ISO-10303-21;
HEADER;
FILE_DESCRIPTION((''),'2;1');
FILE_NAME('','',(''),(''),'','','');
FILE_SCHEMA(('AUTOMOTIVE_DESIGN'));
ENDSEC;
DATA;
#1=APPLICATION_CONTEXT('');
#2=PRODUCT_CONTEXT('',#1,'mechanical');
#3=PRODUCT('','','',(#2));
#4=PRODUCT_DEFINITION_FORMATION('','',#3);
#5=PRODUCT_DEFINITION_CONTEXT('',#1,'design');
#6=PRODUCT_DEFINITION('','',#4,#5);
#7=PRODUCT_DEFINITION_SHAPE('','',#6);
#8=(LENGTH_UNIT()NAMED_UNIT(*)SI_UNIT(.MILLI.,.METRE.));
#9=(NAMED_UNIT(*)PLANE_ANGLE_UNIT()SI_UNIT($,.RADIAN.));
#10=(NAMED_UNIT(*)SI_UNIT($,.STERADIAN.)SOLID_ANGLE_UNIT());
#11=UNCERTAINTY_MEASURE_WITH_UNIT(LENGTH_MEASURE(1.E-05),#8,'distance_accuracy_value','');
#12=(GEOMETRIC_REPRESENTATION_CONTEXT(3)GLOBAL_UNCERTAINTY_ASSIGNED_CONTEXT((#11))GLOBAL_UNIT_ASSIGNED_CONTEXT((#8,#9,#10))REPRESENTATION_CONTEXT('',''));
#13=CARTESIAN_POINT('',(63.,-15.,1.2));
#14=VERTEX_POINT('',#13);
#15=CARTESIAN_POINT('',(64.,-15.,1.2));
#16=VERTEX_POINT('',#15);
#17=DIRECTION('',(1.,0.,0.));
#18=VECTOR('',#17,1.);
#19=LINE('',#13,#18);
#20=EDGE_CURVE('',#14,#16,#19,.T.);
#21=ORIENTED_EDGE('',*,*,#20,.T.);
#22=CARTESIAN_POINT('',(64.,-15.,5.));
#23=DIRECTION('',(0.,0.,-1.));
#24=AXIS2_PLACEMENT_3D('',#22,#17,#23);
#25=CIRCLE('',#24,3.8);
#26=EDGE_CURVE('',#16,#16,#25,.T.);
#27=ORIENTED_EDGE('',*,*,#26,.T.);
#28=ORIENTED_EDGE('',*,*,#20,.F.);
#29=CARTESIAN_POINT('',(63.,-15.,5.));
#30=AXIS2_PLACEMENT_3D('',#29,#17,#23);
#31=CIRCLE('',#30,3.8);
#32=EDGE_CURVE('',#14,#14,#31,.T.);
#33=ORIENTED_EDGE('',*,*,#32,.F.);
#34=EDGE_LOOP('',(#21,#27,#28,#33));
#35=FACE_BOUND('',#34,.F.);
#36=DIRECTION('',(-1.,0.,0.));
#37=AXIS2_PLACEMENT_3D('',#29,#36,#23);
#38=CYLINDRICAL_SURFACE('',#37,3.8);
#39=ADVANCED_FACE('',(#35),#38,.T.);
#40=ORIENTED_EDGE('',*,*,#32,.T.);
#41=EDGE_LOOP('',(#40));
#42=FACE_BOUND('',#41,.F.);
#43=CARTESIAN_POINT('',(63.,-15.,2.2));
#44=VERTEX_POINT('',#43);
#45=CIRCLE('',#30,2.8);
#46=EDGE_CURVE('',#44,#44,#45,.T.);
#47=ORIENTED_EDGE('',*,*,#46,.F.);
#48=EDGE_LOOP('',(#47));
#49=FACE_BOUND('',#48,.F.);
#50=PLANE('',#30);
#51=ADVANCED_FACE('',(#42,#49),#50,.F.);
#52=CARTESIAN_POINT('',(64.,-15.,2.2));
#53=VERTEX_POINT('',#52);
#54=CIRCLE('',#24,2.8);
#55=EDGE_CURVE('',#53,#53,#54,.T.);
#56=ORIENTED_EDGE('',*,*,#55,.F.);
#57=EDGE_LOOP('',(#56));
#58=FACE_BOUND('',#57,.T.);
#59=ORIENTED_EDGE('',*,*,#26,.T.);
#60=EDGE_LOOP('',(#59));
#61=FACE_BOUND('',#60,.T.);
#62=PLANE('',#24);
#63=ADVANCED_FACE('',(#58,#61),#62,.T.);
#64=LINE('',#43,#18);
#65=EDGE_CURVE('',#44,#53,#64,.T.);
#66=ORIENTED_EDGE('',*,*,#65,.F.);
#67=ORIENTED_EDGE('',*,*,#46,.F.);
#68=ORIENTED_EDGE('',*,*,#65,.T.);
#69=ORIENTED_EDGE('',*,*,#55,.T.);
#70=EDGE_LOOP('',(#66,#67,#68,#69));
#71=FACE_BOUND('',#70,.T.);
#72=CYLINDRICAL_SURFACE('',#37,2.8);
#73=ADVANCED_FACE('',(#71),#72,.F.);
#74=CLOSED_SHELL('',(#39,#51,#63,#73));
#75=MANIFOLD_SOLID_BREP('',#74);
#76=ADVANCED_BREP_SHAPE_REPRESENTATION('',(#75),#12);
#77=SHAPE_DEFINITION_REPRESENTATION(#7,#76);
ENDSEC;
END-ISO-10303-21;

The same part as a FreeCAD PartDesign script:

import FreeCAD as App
import Part
import Sketcher
from FreeCAD import Vector

doc = App.newDocument("Part")
params = doc.addObject("Spreadsheet::Sheet", "Params")
for row, (alias, value) in enumerate([
    ("sketch1_diameter", "5.6 mm"),
    ("pad1_length", "1 mm"),
    ("sketch2_diameter", "7.6 mm"),
    ("pad2_length", "1 mm"),
], start=1):
    params.set(f"A{row}", alias)
    params.set(f"B{row}", "=" + value)
    params.setAlias(f"B{row}", alias)

body = doc.addObject("PartDesign::Body", "Body")

# Sketch on XY plane
sketch1 = body.newObject("Sketcher::SketchObject", "Sketch")
sketch1.AttachmentSupport = (doc.getObject("XY_Plane"), [""])
sketch1.MapMode = "FlatFace"
sketch1.addGeometry(Part.Circle(Vector(0, 0, 0), Vector(0, 0, 1), 2.8), False)
sketch1.addConstraint([
    Sketcher.Constraint("Coincident", 0, 3, -1, 1),
    Sketcher.Constraint("Diameter", 0, 5.6),
])
sketch1.setExpression("Constraints[1]", "Params.sketch1_diameter")
pad1 = body.newObject("PartDesign::Pad", "Pad")
pad1.Profile = sketch1
pad1.setExpression("Length", "Params.pad1_length")
body2 = doc.addObject("PartDesign::Body", "Body001")
doc.recompute()

body.Placement = App.Placement(Vector(0, 0, 0), App.Rotation(Vector(0, 1, 0), 90))
boolean = body2.newObject("PartDesign::Boolean", "Boolean")
boolean.Type = "Fuse"
boolean.addObjects([body])
body3 = doc.addObject("PartDesign::Body", "Body002")
doc.recompute()

body2.Placement = App.Placement(Vector(33, -5.5, 4), App.Rotation(Vector(0, 0, 1), 0))
boolean2 = body3.newObject("PartDesign::Boolean", "Boolean001")
boolean2.Type = "Fuse"
boolean2.addObjects([body2])
body4 = doc.addObject("PartDesign::Body", "Body003")

# Sketch on XY plane
sketch2 = body4.newObject("Sketcher::SketchObject", "Sketch001")
sketch2.AttachmentSupport = (doc.getObject("XY_Plane003"), [""])
sketch2.MapMode = "FlatFace"
sketch2.addGeometry(Part.Circle(Vector(0, 0, 0), Vector(0, 0, 1), 3.8), False)
sketch2.addConstraint([
    Sketcher.Constraint("Coincident", 0, 3, -1, 1),
    Sketcher.Constraint("Diameter", 0, 7.6),
])
sketch2.setExpression("Constraints[1]", "Params.sketch2_diameter")
pad2 = body4.newObject("PartDesign::Pad", "Pad001")
pad2.Profile = sketch2
pad2.setExpression("Length", "Params.pad2_length")
body5 = doc.addObject("PartDesign::Body", "Body004")
doc.recompute()

body4.Placement = App.Placement(Vector(0, 0, 0), App.Rotation(Vector(0, 1, 0), 90))
boolean3 = body5.newObject("PartDesign::Boolean", "Boolean002")
boolean3.Type = "Fuse"
boolean3.addObjects([body4])
body6 = doc.addObject("PartDesign::Body", "Body005")
doc.recompute()

body5.Placement = App.Placement(Vector(33, -5.5, 4), App.Rotation(Vector(0, 0, 1), 0))
boolean4 = body6.newObject("PartDesign::Boolean", "Boolean003")
boolean4.Type = "Fuse"
boolean4.addObjects([body5])
doc.recompute()

boolean5 = body6.newObject("PartDesign::Boolean", "Boolean004")
boolean5.Type = "Cut"
boolean5.addObjects([body3])
body7 = doc.addObject("PartDesign::Body", "Body006")
doc.recompute()

body6.Placement = App.Placement(Vector(30, -9.5, 1), App.Rotation(Vector(0, 0, 1), 0))
boolean6 = body7.newObject("PartDesign::Boolean", "Boolean005")
boolean6.Type = "Fuse"
boolean6.addObjects([body6])

doc.recompute()
